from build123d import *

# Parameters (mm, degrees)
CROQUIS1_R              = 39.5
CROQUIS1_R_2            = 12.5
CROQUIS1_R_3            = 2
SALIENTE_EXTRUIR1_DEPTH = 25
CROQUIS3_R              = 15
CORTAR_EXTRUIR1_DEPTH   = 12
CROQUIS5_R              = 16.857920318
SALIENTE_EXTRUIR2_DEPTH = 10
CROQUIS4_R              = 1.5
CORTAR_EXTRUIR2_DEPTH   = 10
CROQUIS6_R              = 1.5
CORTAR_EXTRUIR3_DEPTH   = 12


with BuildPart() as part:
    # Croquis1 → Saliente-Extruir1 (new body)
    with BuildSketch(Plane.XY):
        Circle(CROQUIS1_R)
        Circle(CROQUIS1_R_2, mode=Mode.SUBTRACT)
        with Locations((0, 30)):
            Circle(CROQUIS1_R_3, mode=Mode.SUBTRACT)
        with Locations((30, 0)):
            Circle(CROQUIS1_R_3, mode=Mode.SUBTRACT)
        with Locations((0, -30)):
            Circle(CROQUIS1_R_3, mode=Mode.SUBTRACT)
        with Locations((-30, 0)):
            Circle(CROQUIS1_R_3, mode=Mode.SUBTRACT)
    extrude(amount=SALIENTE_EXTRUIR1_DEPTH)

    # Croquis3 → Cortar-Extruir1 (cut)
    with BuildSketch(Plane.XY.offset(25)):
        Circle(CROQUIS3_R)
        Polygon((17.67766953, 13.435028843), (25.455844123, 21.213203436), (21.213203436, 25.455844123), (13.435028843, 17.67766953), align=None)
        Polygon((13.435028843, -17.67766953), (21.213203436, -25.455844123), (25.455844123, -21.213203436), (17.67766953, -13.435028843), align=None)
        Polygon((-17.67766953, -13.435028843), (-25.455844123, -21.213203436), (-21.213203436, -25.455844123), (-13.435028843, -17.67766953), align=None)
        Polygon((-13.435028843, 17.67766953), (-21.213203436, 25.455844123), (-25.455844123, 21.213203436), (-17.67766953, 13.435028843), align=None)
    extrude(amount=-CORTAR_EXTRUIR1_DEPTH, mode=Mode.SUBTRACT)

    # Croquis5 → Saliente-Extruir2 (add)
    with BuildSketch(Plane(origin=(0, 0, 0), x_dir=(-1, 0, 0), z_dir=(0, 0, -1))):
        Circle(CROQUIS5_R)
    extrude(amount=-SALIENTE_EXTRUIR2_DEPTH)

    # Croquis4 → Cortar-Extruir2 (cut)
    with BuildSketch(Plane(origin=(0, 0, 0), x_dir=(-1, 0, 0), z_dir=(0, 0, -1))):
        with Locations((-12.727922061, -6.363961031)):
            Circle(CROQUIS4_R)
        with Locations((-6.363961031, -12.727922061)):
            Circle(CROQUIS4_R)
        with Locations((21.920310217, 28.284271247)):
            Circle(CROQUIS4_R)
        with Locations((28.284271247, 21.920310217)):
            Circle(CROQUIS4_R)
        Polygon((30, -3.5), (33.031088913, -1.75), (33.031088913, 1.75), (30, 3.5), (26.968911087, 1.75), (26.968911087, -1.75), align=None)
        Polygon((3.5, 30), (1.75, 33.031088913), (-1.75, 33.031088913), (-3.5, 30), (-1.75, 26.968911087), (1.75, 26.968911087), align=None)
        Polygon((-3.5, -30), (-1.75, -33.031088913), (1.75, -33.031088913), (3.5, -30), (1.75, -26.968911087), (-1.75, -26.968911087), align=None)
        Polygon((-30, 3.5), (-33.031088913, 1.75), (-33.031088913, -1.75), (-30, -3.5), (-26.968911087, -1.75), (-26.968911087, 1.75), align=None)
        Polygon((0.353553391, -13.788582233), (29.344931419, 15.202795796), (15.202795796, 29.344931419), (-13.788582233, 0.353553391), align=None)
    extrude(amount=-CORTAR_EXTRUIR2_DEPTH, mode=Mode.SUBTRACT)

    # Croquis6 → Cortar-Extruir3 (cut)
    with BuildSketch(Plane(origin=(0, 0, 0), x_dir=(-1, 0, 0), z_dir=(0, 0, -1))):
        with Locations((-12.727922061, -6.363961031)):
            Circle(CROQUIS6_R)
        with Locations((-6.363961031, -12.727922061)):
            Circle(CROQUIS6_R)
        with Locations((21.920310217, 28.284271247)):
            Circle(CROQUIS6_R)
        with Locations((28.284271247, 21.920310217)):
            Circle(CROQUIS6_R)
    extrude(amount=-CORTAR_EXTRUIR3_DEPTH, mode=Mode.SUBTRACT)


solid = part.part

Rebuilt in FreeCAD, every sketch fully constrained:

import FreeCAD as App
import Part
import Sketcher
Q = App.Units.Quantity

doc = App.newDocument("Part")
body = doc.addObject("PartDesign::Body", "Body")

# Sketch on XY plane
sketch1 = body.newObject("Sketcher::SketchObject", "Sketch")
sketch1.AttachmentSupport = (doc.getObject("XY_Plane"), [""])
sketch1.MapMode = "FlatFace"
sketch1.addGeometry(Part.Circle(App.Vector(0, 0, 0), App.Vector(0, 0, 1), 39.5), False)
sketch1.addGeometry(Part.Circle(App.Vector(0, -30, 0), App.Vector(0, 0, 1), 2), False)
sketch1.addGeometry(Part.Circle(App.Vector(-30, 0, 0), App.Vector(0, 0, 1), 2), False)
sketch1.addGeometry(Part.Circle(App.Vector(0, 0, 0), App.Vector(0, 0, 1), 12.5), False)
sketch1.addGeometry(Part.Circle(App.Vector(30, 0, 0), App.Vector(0, 0, 1), 2), False)
sketch1.addGeometry(Part.Circle(App.Vector(0, 30, 0), App.Vector(0, 0, 1), 2), False)
sketch1.addConstraint(Sketcher.Constraint("Coincident", 0, 3, -1, 1))
sketch1.addConstraint(Sketcher.Constraint("Coincident", 3, 3, -1, 1))
sketch1.addConstraint(Sketcher.Constraint("Equal", 1, 2))
sketch1.addConstraint(Sketcher.Constraint("Equal", 2, 4))
sketch1.addConstraint(Sketcher.Constraint("Equal", 4, 5))
sketch1.addConstraint(Sketcher.Constraint("Symmetric", 2, 3, 4, 3, -1, 1))
sketch1.addConstraint(Sketcher.Constraint("Symmetric", 1, 3, 5, 3, -1, 1))
sketch1.addConstraint(Sketcher.Constraint("PointOnObject", 1, 3, -2))
sketch1.addConstraint(Sketcher.Constraint("PointOnObject", 2, 3, -1))
sketch1.addConstraint(Sketcher.Constraint("Diameter", 0, 79.0))
sketch1.addConstraint(Sketcher.Constraint("Diameter", 1, 4.0))
sketch1.addConstraint(Sketcher.Constraint("Diameter", 3, 25.0))
sketch1.addConstraint(Sketcher.Constraint("DistanceY", 1, 3, -1, 1, 30.0))
sketch1.addConstraint(Sketcher.Constraint("DistanceX", 2, 3, -1, 1, 30.0))
pad1 = body.newObject("PartDesign::Pad", "Pad")
pad1.Profile = sketch1
pad1.Length = 25

# Sketch on XY plane
sketch2 = body.newObject("Sketcher::SketchObject", "Sketch001")
sketch2.AttachmentSupport = (doc.getObject("XY_Plane"), [""])
sketch2.MapMode = "FlatFace"
sketch2.AttachmentOffset = App.Placement(App.Vector(0, 0, 25), App.Rotation())
sketch2.addGeometry(Part.Circle(App.Vector(0, 0, 0), App.Vector(0, 0, 1), 15), False)
sketch2.addGeometry(Part.LineSegment(App.Vector(18, 13, 0), App.Vector(25, 21, 0)), False)
sketch2.addGeometry(Part.LineSegment(App.Vector(25, 21, 0), App.Vector(21, 25, 0)), False)
sketch2.addGeometry(Part.LineSegment(App.Vector(21, 25, 0), App.Vector(13, 18, 0)), False)
sketch2.addGeometry(Part.LineSegment(App.Vector(13, 18, 0), App.Vector(18, 13, 0)), False)
sketch2.addGeometry(Part.LineSegment(App.Vector(13, -18, 0), App.Vector(21, -25, 0)), False)
sketch2.addGeometry(Part.LineSegment(App.Vector(21, -25, 0), App.Vector(25, -21, 0)), False)
sketch2.addGeometry(Part.LineSegment(App.Vector(25, -21, 0), App.Vector(18, -13, 0)), False)
sketch2.addGeometry(Part.LineSegment(App.Vector(18, -13, 0), App.Vector(13, -18, 0)), False)
sketch2.addGeometry(Part.LineSegment(App.Vector(-18, -13, 0), App.Vector(-25, -21, 0)), False)
sketch2.addGeometry(Part.LineSegment(App.Vector(-25, -21, 0), App.Vector(-21, -25, 0)), False)
sketch2.addGeometry(Part.LineSegment(App.Vector(-21, -25, 0), App.Vector(-13, -18, 0)), False)
sketch2.addGeometry(Part.LineSegment(App.Vector(-13, -18, 0), App.Vector(-18, -13, 0)), False)
sketch2.addGeometry(Part.LineSegment(App.Vector(-13, 18, 0), App.Vector(-21, 25, 0)), False)
sketch2.addGeometry(Part.LineSegment(App.Vector(-21, 25, 0), App.Vector(-25, 21, 0)), False)
sketch2.addGeometry(Part.LineSegment(App.Vector(-25, 21, 0), App.Vector(-18, 13, 0)), False)
sketch2.addGeometry(Part.LineSegment(App.Vector(-18, 13, 0), App.Vector(-13, 18, 0)), False)
sketch2.addConstraint(Sketcher.Constraint("Coincident", 1, 2, 2, 1))
sketch2.addConstraint(Sketcher.Constraint("Coincident", 2, 2, 3, 1))
sketch2.addConstraint(Sketcher.Constraint("Coincident", 3, 2, 4, 1))
sketch2.addConstraint(Sketcher.Constraint("Coincident", 4, 2, 1, 1))
sketch2.addConstraint(Sketcher.Constraint("Coincident", 5, 2, 6, 1))
sketch2.addConstraint(Sketcher.Constraint("Coincident", 6, 2, 7, 1))
sketch2.addConstraint(Sketcher.Constraint("Coincident", 7, 2, 8, 1))
sketch2.addConstraint(Sketcher.Constraint("Coincident", 8, 2, 5, 1))
sketch2.addConstraint(Sketcher.Constraint("Coincident", 9, 2, 10, 1))
sketch2.addConstraint(Sketcher.Constraint("Coincident", 10, 2, 11, 1))
sketch2.addConstraint(Sketcher.Constraint("Coincident", 11, 2, 12, 1))
sketch2.addConstraint(Sketcher.Constraint("Coincident", 12, 2, 9, 1))
sketch2.addConstraint(Sketcher.Constraint("Coincident", 13, 2, 14, 1))
sketch2.addConstraint(Sketcher.Constraint("Coincident", 14, 2, 15, 1))
sketch2.addConstraint(Sketcher.Constraint("Coincident", 15, 2, 16, 1))
sketch2.addConstraint(Sketcher.Constraint("Coincident", 16, 2, 13, 1))
sketch2.addConstraint(Sketcher.Constraint("Coincident", 0, 3, -1, 1))
sketch2.addConstraint(Sketcher.Constraint("Symmetric", 1, 2, 9, 2, -1, 1))
sketch2.addConstraint(Sketcher.Constraint("Symmetric", 2, 2, 10, 2, -1, 1))
sketch2.addConstraint(Sketcher.Constraint("Symmetric", 3, 2, 11, 2, -1, 1))
sketch2.addConstraint(Sketcher.Constraint("Symmetric", 4, 2, 12, 2, -1, 1))
sketch2.addConstraint(Sketcher.Constraint("Symmetric", 5, 2, 13, 2, -1, 1))
sketch2.addConstraint(Sketcher.Constraint("Symmetric", 6, 2, 14, 2, -1, 1))
sketch2.addConstraint(Sketcher.Constraint("Symmetric", 7, 2, 15, 2, -1, 1))
sketch2.addConstraint(Sketcher.Constraint("Symmetric", 8, 2, 16, 2, -1, 1))
sketch2.addConstraint(Sketcher.Constraint("Symmetric", 6, 2, 9, 2, -2))
sketch2.addConstraint(Sketcher.Constraint("Symmetric", 5, 2, 10, 2, -2))
sketch2.addConstraint(Sketcher.Constraint("Symmetric", 8, 2, 11, 2, -2))
sketch2.addConstraint(Sketcher.Constraint("Symmetric", 7, 2, 12, 2, -2))
sketch2.addConstraint(Sketcher.Constraint("Perpendicular", 1, 2))
sketch2.addConstraint(Sketcher.Constraint("Perpendicular", 2, 3))
sketch2.addConstraint(Sketcher.Constraint("Perpendicular", 3, 4))
sketch2.addConstraint(Sketcher.Constraint("Parallel", 4, 5))
sketch2.addConstraint(Sketcher.Constraint("Diameter", 0, 30.0))
sketch2.addConstraint(Sketcher.Constraint("Distance", 1, 11.0))
sketch2.addConstraint(Sketcher.Constraint("Distance", 2, 6.0))
sketch2.addConstraint(Sketcher.Constraint("DistanceY", 7, 2, 3, 2, 31.112698))
sketch2.addConstraint(Sketcher.Constraint("DistanceX", 11, 2, 7, 2, 31.112698))
pocket1 = body.newObject("PartDesign::Pocket", "Pocket")
pocket1.Profile = sketch2
pocket1.Length = 12

# Sketch on XY plane
sketch3 = body.newObject("Sketcher::SketchObject", "Sketch002")
sketch3.AttachmentSupport = (doc.getObject("XY_Plane"), [""])
sketch3.MapMode = "FlatFace"
sketch3.addGeometry(Part.Circle(App.Vector(0, 0, 0), App.Vector(0, 0, 1), 17), False)
sketch3.addConstraint(Sketcher.Constraint("Coincident", 0, 3, -1, 1))
sketch3.addConstraint(Sketcher.Constraint("Diameter", 0, 33.715841))
pad2 = body.newObject("PartDesign::Pad", "Pad001")
pad2.Profile = sketch3
pad2.Length = 10

# Sketch on XY plane
sketch4 = body.newObject("Sketcher::SketchObject", "Sketch003")
sketch4.AttachmentSupport = (doc.getObject("XY_Plane"), [""])
sketch4.MapMode = "FlatFace"
sketch4.addGeometry(Part.Circle(App.Vector(12.7, -6.4, 0), App.Vector(0, 0, 1), 1.5), False)
sketch4.addGeometry(Part.Circle(App.Vector(6.4, -12.7, 0), App.Vector(0, 0, 1), 1.5), False)
sketch4.addGeometry(Part.Circle(App.Vector(-21.9, 28.3, 0), App.Vector(0, 0, 1), 1.5), False)
sketch4.addGeometry(Part.Circle(App.Vector(-28.3, 21.9, 0), App.Vector(0, 0, 1), 1.5), False)
sketch4.addGeometry(Part.LineSegment(App.Vector(-30, -3.5, 0), App.Vector(-33, -1.8, 0)), False)
sketch4.addGeometry(Part.LineSegment(App.Vector(-33, -1.8, 0), App.Vector(-33, 1.8, 0)), False)
sketch4.addGeometry(Part.LineSegment(App.Vector(-33, 1.8, 0), App.Vector(-30, 3.5, 0)), False)
sketch4.addGeometry(Part.LineSegment(App.Vector(-30, 3.5, 0), App.Vector(-27, 1.8, 0)), False)
sketch4.addGeometry(Part.LineSegment(App.Vector(-27, 1.8, 0), App.Vector(-27, -1.8, 0)), False)
sketch4.addGeometry(Part.LineSegment(App.Vector(-27, -1.8, 0), App.Vector(-30, -3.5, 0)), False)
sketch4.addGeometry(Part.LineSegment(App.Vector(-3.5, 30, 0), App.Vector(-1.8, 33, 0)), False)
sketch4.addGeometry(Part.LineSegment(App.Vector(-1.8, 33, 0), App.Vector(1.8, 33, 0)), False)
sketch4.addGeometry(Part.LineSegment(App.Vector(1.8, 33, 0), App.Vector(3.5, 30, 0)), False)
sketch4.addGeometry(Part.LineSegment(App.Vector(3.5, 30, 0), App.Vector(1.8, 27, 0)), False)
sketch4.addGeometry(Part.LineSegment(App.Vector(1.8, 27, 0), App.Vector(-1.8, 27, 0)), False)
sketch4.addGeometry(Part.LineSegment(App.Vector(-1.8, 27, 0), App.Vector(-3.5, 30, 0)), False)
sketch4.addGeometry(Part.LineSegment(App.Vector(3.5, -30, 0), App.Vector(1.8, -33, 0)), False)
sketch4.addGeometry(Part.LineSegment(App.Vector(1.8, -33, 0), App.Vector(-1.8, -33, 0)), False)
sketch4.addGeometry(Part.LineSegment(App.Vector(-1.8, -33, 0), App.Vector(-3.5, -30, 0)), False)
sketch4.addGeometry(Part.LineSegment(App.Vector(-3.5, -30, 0), App.Vector(-1.8, -27, 0)), False)
sketch4.addGeometry(Part.LineSegment(App.Vector(-1.8, -27, 0), App.Vector(1.8, -27, 0)), False)
sketch4.addGeometry(Part.LineSegment(App.Vector(1.8, -27, 0), App.Vector(3.5, -30, 0)), False)
sketch4.addGeometry(Part.LineSegment(App.Vector(30, 3.5, 0), App.Vector(33, 1.8, 0)), False)
sketch4.addGeometry(Part.LineSegment(App.Vector(33, 1.8, 0), App.Vector(33, -1.8, 0)), False)
sketch4.addGeometry(Part.LineSegment(App.Vector(33, -1.8, 0), App.Vector(30, -3.5, 0)), False)
sketch4.addGeometry(Part.LineSegment(App.Vector(30, -3.5, 0), App.Vector(27, -1.8, 0)), False)
sketch4.addGeometry(Part.LineSegment(App.Vector(27, -1.8, 0), App.Vector(27, 1.8, 0)), False)
sketch4.addGeometry(Part.LineSegment(App.Vector(27, 1.8, 0), App.Vector(30, 3.5, 0)), False)
sketch4.addGeometry(Part.LineSegment(App.Vector(-0.4, -13.8, 0), App.Vector(-29.3, 15.2, 0)), False)
sketch4.addGeometry(Part.LineSegment(App.Vector(-29.3, 15.2, 0), App.Vector(-15.2, 29.3, 0)), False)
sketch4.addGeometry(Part.LineSegment(App.Vector(-15.2, 29.3, 0), App.Vector(13.8, 0.4, 0)), False)
sketch4.addGeometry(Part.LineSegment(App.Vector(13.8, 0.4, 0), App.Vector(-0.4, -13.8, 0)), False)
sketch4.addConstraint(Sketcher.Constraint("Coincident", 4, 2, 5, 1))
sketch4.addConstraint(Sketcher.Constraint("Coincident", 5, 2, 6, 1))
sketch4.addConstraint(Sketcher.Constraint("Coincident", 6, 2, 7, 1))
sketch4.addConstraint(Sketcher.Constraint("Coincident", 7, 2, 8, 1))
sketch4.addConstraint(Sketcher.Constraint("Coincident", 8, 2, 9, 1))
sketch4.addConstraint(Sketcher.Constraint("Coincident", 9, 2, 4, 1))
sketch4.addConstraint(Sketcher.Constraint("Coincident", 10, 2, 11, 1))
sketch4.addConstraint(Sketcher.Constraint("Coincident", 11, 2, 12, 1))
sketch4.addConstraint(Sketcher.Constraint("Coincident", 12, 2, 13, 1))
sketch4.addConstraint(Sketcher.Constraint("Coincident", 13, 2, 14, 1))
sketch4.addConstraint(Sketcher.Constraint("Coincident", 14, 2, 15, 1))
sketch4.addConstraint(Sketcher.Constraint("Coincident", 15, 2, 10, 1))
sketch4.addConstraint(Sketcher.Constraint("Coincident", 16, 2, 17, 1))
sketch4.addConstraint(Sketcher.Constraint("Coincident", 17, 2, 18, 1))
sketch4.addConstraint(Sketcher.Constraint("Coincident", 18, 2, 19, 1))
sketch4.addConstraint(Sketcher.Constraint("Coincident", 19, 2, 20, 1))
sketch4.addConstraint(Sketcher.Constraint("Coincident", 20, 2, 21, 1))
sketch4.addConstraint(Sketcher.Constraint("Coincident", 21, 2, 16, 1))
sketch4.addConstraint(Sketcher.Constraint("Coincident", 22, 2, 23, 1))
sketch4.addConstraint(Sketcher.Constraint("Coincident", 23, 2, 24, 1))
sketch4.addConstraint(Sketcher.Constraint("Coincident", 24, 2, 25, 1))
sketch4.addConstraint(Sketcher.Constraint("Coincident", 25, 2, 26, 1))
sketch4.addConstraint(Sketcher.Constraint("Coincident", 26, 2, 27, 1))
sketch4.addConstraint(Sketcher.Constraint("Coincident", 27, 2, 22, 1))
sketch4.addConstraint(Sketcher.Constraint("Coincident", 28, 2, 29, 1))
sketch4.addConstraint(Sketcher.Constraint("Coincident", 29, 2, 30, 1))
sketch4.addConstraint(Sketcher.Constraint("Coincident", 30, 2, 31, 1))
sketch4.addConstraint(Sketcher.Constraint("Coincident", 31, 2, 28, 1))
sketch4.addConstraint(Sketcher.Constraint("Vertical", 5))
sketch4.addConstraint(Sketcher.Constraint("Vertical", 8))
sketch4.addConstraint(Sketcher.Constraint("Horizontal", 11))
sketch4.addConstraint(Sketcher.Constraint("Horizontal", 14))
sketch4.addConstraint(Sketcher.Constraint("Horizontal", 17))
sketch4.addConstraint(Sketcher.Constraint("Horizontal", 20))
sketch4.addConstraint(Sketcher.Constraint("Vertical", 23))
sketch4.addConstraint(Sketcher.Constraint("Vertical", 26))
sketch4.addConstraint(Sketcher.Constraint("Equal", 0, 1))
sketch4.addConstraint(Sketcher.Constraint("Equal", 1, 2))
sketch4.addConstraint(Sketcher.Constraint("Equal", 2, 3))
sketch4.addConstraint(Sketcher.Constraint("Symmetric", 10, 2, 16, 2, -1, 1))
sketch4.addConstraint(Sketcher.Constraint("Symmetric", 12, 2, 18, 2, -1, 1))
sketch4.addConstraint(Sketcher.Constraint("Symmetric", 13, 2, 19, 2, -1, 1))
sketch4.addConstraint(Sketcher.Constraint("Symmetric", 15, 2, 21, 2, -1, 1))
sketch4.addConstraint(Sketcher.Constraint("Symmetric", 4, 2, 22, 2, -1, 1))
sketch4.addConstraint(Sketcher.Constraint("Symmetric", 6, 2, 24, 2, -1, 1))
sketch4.addConstraint(Sketcher.Constraint("Symmetric", 7, 2, 25, 2, -1, 1))
sketch4.addConstraint(Sketcher.Constraint("Symmetric", 9, 2, 27, 2, -1, 1))
sketch4.addConstraint(Sketcher.Constraint("Symmetric", 12, 2, 15, 2, -2))
sketch4.addConstraint(Sketcher.Constraint("Symmetric", 9, 2, 24, 2, -2))
sketch4.addConstraint(Sketcher.Constraint("Parallel", 4, 7))
sketch4.addConstraint(Sketcher.Constraint("Parallel", 6, 9))
sketch4.addConstraint(Sketcher.Constraint("Perpendicular", 7, 10))
sketch4.addConstraint(Sketcher.Constraint("Perpendicular", 9, 12))
sketch4.addConstraint(Sketcher.Constraint("Parallel", 10, 13))
sketch4.addConstraint(Sketcher.Constraint("Parallel", 12, 15))
sketch4.addConstraint(Sketcher.Constraint("Parallel", 15, 18))
sketch4.addConstraint(Sketcher.Constraint("Parallel", 18, 21))
sketch4.addConstraint(Sketcher.Constraint("Perpendicular", 21, 24))
sketch4.addConstraint(Sketcher.Constraint("Parallel", 24, 27))
sketch4.addConstraint(Sketcher.Constraint("Perpendicular", 28, 29))
sketch4.addConstraint(Sketcher.Constraint("Perpendicular", 29, 30))
sketch4.addConstraint(Sketcher.Constraint("Perpendicular", 30, 31))
sketch4.addConstraint(Sketcher.Constraint("Horizontal", 5, 2, 7, 2))
sketch4.addConstraint(Sketcher.Constraint("Horizontal", 4, 2, 8, 2))
sketch4.addConstraint(Sketcher.Constraint("Vertical", 11, 2, 13, 2))
sketch4.addConstraint(Sketcher.Constraint("Equal", 20, 5))
sketch4.addConstraint(Sketcher.Constraint("Equal", 9, 10))
sketch4.addConstraint(Sketcher.Constraint("Diameter", 0, 3.0))
sketch4.addConstraint(Sketcher.Constraint("Angle", 4, Q("150 deg")))
sketch4.addConstraint(Sketcher.Constraint("Angle", 28, Q("135 deg")))
sketch4.addConstraint(Sketcher.Constraint("Distance", 28, 41.0))
sketch4.addConstraint(Sketcher.Constraint("Distance", 29, 20.0))
sketch4.addConstraint(Sketcher.Constraint("DistanceX", 11, 1, 11, 2, 3.5))
sketch4.addConstraint(Sketcher.Constraint("DistanceX", 6, 2, -1, 1, 30.0))
sketch4.addConstraint(Sketcher.Constraint("DistanceY", -1, 1, 12, 2, 30.0))
sketch4.addConstraint(Sketcher.Constraint("DistanceY", 9, 2, 6, 2, 7.0))
sketch4.addConstraint(Sketcher.Constraint("DistanceX", 7, 2, 2, 3, 5.048601))
sketch4.addConstraint(Sketcher.Constraint("DistanceY", 3, 3, 13, 2, 5.048601))
sketch4.addConstraint(Sketcher.Constraint("DistanceY", 0, 3, -1, 1, 6.363961))
sketch4.addConstraint(Sketcher.Constraint("DistanceX", -1, 1, 1, 3, 6.363961))
sketch4.addConstraint(Sketcher.Constraint("DistanceY", -1, 1, 2, 3, 28.284271))
sketch4.addConstraint(Sketcher.Constraint("DistanceX", 3, 3, -1, 1, 28.284271))
sketch4.addConstraint(Sketcher.Constraint("DistanceX", 28, 2, -1, 1, 29.344931))
sketch4.addConstraint(Sketcher.Constraint("DistanceY", -1, 1, 29, 2, 29.344931))
sketch4.addConstraint(Sketcher.Constraint("DistanceX", 1, 3, 0, 3, 6.363961))
sketch4.addConstraint(Sketcher.Constraint("DistanceY", 1, 3, 0, 3, 6.363961))
pocket2 = body.newObject("PartDesign::Pocket", "Pocket001")
pocket2.Profile = sketch4
pocket2.Length = 10
pocket2.Reversed = True

# Sketch on XY plane
sketch5 = body.newObject("Sketcher::SketchObject", "Sketch004")
sketch5.AttachmentSupport = (doc.getObject("XY_Plane"), [""])
sketch5.MapMode = "FlatFace"
sketch5.addGeometry(Part.Circle(App.Vector(12.7, -6.4, 0), App.Vector(0, 0, 1), 1.5), False)
sketch5.addGeometry(Part.Circle(App.Vector(6.4, -12.7, 0), App.Vector(0, 0, 1), 1.5), False)
sketch5.addGeometry(Part.Circle(App.Vector(-21.9, 28.3, 0), App.Vector(0, 0, 1), 1.5), False)
sketch5.addGeometry(Part.Circle(App.Vector(-28.3, 21.9, 0), App.Vector(0, 0, 1), 1.5), False)
sketch5.addConstraint(Sketcher.Constraint("Equal", 0, 1))
sketch5.addConstraint(Sketcher.Constraint("Equal", 1, 2))
sketch5.addConstraint(Sketcher.Constraint("Equal", 2, 3))
sketch5.addConstraint(Sketcher.Constraint("Diameter", 0, 3.0))
sketch5.addConstraint(Sketcher.Constraint("DistanceY", 0, 3, -1, 1, 6.363961))
sketch5.addConstraint(Sketcher.Constraint("DistanceX", -1, 1, 1, 3, 6.363961))
sketch5.addConstraint(Sketcher.Constraint("DistanceX", 2, 3, -1, 1, 21.92031))
sketch5.addConstraint(Sketcher.Constraint("DistanceY", -1, 1, 2, 3, 28.284271))
sketch5.addConstraint(Sketcher.Constraint("DistanceX", 3, 3, -1, 1, 28.284271))
sketch5.addConstraint(Sketcher.Constraint("DistanceY", -1, 1, 3, 3, 21.92031))
sketch5.addConstraint(Sketcher.Constraint("DistanceX", 1, 3, 0, 3, 6.363961))
sketch5.addConstraint(Sketcher.Constraint("DistanceY", 1, 3, 0, 3, 6.363961))
pocket3 = body.newObject("PartDesign::Pocket", "Pocket002")
pocket3.Profile = sketch5
pocket3.Length = 12
pocket3.Reversed = True

doc.recompute()
